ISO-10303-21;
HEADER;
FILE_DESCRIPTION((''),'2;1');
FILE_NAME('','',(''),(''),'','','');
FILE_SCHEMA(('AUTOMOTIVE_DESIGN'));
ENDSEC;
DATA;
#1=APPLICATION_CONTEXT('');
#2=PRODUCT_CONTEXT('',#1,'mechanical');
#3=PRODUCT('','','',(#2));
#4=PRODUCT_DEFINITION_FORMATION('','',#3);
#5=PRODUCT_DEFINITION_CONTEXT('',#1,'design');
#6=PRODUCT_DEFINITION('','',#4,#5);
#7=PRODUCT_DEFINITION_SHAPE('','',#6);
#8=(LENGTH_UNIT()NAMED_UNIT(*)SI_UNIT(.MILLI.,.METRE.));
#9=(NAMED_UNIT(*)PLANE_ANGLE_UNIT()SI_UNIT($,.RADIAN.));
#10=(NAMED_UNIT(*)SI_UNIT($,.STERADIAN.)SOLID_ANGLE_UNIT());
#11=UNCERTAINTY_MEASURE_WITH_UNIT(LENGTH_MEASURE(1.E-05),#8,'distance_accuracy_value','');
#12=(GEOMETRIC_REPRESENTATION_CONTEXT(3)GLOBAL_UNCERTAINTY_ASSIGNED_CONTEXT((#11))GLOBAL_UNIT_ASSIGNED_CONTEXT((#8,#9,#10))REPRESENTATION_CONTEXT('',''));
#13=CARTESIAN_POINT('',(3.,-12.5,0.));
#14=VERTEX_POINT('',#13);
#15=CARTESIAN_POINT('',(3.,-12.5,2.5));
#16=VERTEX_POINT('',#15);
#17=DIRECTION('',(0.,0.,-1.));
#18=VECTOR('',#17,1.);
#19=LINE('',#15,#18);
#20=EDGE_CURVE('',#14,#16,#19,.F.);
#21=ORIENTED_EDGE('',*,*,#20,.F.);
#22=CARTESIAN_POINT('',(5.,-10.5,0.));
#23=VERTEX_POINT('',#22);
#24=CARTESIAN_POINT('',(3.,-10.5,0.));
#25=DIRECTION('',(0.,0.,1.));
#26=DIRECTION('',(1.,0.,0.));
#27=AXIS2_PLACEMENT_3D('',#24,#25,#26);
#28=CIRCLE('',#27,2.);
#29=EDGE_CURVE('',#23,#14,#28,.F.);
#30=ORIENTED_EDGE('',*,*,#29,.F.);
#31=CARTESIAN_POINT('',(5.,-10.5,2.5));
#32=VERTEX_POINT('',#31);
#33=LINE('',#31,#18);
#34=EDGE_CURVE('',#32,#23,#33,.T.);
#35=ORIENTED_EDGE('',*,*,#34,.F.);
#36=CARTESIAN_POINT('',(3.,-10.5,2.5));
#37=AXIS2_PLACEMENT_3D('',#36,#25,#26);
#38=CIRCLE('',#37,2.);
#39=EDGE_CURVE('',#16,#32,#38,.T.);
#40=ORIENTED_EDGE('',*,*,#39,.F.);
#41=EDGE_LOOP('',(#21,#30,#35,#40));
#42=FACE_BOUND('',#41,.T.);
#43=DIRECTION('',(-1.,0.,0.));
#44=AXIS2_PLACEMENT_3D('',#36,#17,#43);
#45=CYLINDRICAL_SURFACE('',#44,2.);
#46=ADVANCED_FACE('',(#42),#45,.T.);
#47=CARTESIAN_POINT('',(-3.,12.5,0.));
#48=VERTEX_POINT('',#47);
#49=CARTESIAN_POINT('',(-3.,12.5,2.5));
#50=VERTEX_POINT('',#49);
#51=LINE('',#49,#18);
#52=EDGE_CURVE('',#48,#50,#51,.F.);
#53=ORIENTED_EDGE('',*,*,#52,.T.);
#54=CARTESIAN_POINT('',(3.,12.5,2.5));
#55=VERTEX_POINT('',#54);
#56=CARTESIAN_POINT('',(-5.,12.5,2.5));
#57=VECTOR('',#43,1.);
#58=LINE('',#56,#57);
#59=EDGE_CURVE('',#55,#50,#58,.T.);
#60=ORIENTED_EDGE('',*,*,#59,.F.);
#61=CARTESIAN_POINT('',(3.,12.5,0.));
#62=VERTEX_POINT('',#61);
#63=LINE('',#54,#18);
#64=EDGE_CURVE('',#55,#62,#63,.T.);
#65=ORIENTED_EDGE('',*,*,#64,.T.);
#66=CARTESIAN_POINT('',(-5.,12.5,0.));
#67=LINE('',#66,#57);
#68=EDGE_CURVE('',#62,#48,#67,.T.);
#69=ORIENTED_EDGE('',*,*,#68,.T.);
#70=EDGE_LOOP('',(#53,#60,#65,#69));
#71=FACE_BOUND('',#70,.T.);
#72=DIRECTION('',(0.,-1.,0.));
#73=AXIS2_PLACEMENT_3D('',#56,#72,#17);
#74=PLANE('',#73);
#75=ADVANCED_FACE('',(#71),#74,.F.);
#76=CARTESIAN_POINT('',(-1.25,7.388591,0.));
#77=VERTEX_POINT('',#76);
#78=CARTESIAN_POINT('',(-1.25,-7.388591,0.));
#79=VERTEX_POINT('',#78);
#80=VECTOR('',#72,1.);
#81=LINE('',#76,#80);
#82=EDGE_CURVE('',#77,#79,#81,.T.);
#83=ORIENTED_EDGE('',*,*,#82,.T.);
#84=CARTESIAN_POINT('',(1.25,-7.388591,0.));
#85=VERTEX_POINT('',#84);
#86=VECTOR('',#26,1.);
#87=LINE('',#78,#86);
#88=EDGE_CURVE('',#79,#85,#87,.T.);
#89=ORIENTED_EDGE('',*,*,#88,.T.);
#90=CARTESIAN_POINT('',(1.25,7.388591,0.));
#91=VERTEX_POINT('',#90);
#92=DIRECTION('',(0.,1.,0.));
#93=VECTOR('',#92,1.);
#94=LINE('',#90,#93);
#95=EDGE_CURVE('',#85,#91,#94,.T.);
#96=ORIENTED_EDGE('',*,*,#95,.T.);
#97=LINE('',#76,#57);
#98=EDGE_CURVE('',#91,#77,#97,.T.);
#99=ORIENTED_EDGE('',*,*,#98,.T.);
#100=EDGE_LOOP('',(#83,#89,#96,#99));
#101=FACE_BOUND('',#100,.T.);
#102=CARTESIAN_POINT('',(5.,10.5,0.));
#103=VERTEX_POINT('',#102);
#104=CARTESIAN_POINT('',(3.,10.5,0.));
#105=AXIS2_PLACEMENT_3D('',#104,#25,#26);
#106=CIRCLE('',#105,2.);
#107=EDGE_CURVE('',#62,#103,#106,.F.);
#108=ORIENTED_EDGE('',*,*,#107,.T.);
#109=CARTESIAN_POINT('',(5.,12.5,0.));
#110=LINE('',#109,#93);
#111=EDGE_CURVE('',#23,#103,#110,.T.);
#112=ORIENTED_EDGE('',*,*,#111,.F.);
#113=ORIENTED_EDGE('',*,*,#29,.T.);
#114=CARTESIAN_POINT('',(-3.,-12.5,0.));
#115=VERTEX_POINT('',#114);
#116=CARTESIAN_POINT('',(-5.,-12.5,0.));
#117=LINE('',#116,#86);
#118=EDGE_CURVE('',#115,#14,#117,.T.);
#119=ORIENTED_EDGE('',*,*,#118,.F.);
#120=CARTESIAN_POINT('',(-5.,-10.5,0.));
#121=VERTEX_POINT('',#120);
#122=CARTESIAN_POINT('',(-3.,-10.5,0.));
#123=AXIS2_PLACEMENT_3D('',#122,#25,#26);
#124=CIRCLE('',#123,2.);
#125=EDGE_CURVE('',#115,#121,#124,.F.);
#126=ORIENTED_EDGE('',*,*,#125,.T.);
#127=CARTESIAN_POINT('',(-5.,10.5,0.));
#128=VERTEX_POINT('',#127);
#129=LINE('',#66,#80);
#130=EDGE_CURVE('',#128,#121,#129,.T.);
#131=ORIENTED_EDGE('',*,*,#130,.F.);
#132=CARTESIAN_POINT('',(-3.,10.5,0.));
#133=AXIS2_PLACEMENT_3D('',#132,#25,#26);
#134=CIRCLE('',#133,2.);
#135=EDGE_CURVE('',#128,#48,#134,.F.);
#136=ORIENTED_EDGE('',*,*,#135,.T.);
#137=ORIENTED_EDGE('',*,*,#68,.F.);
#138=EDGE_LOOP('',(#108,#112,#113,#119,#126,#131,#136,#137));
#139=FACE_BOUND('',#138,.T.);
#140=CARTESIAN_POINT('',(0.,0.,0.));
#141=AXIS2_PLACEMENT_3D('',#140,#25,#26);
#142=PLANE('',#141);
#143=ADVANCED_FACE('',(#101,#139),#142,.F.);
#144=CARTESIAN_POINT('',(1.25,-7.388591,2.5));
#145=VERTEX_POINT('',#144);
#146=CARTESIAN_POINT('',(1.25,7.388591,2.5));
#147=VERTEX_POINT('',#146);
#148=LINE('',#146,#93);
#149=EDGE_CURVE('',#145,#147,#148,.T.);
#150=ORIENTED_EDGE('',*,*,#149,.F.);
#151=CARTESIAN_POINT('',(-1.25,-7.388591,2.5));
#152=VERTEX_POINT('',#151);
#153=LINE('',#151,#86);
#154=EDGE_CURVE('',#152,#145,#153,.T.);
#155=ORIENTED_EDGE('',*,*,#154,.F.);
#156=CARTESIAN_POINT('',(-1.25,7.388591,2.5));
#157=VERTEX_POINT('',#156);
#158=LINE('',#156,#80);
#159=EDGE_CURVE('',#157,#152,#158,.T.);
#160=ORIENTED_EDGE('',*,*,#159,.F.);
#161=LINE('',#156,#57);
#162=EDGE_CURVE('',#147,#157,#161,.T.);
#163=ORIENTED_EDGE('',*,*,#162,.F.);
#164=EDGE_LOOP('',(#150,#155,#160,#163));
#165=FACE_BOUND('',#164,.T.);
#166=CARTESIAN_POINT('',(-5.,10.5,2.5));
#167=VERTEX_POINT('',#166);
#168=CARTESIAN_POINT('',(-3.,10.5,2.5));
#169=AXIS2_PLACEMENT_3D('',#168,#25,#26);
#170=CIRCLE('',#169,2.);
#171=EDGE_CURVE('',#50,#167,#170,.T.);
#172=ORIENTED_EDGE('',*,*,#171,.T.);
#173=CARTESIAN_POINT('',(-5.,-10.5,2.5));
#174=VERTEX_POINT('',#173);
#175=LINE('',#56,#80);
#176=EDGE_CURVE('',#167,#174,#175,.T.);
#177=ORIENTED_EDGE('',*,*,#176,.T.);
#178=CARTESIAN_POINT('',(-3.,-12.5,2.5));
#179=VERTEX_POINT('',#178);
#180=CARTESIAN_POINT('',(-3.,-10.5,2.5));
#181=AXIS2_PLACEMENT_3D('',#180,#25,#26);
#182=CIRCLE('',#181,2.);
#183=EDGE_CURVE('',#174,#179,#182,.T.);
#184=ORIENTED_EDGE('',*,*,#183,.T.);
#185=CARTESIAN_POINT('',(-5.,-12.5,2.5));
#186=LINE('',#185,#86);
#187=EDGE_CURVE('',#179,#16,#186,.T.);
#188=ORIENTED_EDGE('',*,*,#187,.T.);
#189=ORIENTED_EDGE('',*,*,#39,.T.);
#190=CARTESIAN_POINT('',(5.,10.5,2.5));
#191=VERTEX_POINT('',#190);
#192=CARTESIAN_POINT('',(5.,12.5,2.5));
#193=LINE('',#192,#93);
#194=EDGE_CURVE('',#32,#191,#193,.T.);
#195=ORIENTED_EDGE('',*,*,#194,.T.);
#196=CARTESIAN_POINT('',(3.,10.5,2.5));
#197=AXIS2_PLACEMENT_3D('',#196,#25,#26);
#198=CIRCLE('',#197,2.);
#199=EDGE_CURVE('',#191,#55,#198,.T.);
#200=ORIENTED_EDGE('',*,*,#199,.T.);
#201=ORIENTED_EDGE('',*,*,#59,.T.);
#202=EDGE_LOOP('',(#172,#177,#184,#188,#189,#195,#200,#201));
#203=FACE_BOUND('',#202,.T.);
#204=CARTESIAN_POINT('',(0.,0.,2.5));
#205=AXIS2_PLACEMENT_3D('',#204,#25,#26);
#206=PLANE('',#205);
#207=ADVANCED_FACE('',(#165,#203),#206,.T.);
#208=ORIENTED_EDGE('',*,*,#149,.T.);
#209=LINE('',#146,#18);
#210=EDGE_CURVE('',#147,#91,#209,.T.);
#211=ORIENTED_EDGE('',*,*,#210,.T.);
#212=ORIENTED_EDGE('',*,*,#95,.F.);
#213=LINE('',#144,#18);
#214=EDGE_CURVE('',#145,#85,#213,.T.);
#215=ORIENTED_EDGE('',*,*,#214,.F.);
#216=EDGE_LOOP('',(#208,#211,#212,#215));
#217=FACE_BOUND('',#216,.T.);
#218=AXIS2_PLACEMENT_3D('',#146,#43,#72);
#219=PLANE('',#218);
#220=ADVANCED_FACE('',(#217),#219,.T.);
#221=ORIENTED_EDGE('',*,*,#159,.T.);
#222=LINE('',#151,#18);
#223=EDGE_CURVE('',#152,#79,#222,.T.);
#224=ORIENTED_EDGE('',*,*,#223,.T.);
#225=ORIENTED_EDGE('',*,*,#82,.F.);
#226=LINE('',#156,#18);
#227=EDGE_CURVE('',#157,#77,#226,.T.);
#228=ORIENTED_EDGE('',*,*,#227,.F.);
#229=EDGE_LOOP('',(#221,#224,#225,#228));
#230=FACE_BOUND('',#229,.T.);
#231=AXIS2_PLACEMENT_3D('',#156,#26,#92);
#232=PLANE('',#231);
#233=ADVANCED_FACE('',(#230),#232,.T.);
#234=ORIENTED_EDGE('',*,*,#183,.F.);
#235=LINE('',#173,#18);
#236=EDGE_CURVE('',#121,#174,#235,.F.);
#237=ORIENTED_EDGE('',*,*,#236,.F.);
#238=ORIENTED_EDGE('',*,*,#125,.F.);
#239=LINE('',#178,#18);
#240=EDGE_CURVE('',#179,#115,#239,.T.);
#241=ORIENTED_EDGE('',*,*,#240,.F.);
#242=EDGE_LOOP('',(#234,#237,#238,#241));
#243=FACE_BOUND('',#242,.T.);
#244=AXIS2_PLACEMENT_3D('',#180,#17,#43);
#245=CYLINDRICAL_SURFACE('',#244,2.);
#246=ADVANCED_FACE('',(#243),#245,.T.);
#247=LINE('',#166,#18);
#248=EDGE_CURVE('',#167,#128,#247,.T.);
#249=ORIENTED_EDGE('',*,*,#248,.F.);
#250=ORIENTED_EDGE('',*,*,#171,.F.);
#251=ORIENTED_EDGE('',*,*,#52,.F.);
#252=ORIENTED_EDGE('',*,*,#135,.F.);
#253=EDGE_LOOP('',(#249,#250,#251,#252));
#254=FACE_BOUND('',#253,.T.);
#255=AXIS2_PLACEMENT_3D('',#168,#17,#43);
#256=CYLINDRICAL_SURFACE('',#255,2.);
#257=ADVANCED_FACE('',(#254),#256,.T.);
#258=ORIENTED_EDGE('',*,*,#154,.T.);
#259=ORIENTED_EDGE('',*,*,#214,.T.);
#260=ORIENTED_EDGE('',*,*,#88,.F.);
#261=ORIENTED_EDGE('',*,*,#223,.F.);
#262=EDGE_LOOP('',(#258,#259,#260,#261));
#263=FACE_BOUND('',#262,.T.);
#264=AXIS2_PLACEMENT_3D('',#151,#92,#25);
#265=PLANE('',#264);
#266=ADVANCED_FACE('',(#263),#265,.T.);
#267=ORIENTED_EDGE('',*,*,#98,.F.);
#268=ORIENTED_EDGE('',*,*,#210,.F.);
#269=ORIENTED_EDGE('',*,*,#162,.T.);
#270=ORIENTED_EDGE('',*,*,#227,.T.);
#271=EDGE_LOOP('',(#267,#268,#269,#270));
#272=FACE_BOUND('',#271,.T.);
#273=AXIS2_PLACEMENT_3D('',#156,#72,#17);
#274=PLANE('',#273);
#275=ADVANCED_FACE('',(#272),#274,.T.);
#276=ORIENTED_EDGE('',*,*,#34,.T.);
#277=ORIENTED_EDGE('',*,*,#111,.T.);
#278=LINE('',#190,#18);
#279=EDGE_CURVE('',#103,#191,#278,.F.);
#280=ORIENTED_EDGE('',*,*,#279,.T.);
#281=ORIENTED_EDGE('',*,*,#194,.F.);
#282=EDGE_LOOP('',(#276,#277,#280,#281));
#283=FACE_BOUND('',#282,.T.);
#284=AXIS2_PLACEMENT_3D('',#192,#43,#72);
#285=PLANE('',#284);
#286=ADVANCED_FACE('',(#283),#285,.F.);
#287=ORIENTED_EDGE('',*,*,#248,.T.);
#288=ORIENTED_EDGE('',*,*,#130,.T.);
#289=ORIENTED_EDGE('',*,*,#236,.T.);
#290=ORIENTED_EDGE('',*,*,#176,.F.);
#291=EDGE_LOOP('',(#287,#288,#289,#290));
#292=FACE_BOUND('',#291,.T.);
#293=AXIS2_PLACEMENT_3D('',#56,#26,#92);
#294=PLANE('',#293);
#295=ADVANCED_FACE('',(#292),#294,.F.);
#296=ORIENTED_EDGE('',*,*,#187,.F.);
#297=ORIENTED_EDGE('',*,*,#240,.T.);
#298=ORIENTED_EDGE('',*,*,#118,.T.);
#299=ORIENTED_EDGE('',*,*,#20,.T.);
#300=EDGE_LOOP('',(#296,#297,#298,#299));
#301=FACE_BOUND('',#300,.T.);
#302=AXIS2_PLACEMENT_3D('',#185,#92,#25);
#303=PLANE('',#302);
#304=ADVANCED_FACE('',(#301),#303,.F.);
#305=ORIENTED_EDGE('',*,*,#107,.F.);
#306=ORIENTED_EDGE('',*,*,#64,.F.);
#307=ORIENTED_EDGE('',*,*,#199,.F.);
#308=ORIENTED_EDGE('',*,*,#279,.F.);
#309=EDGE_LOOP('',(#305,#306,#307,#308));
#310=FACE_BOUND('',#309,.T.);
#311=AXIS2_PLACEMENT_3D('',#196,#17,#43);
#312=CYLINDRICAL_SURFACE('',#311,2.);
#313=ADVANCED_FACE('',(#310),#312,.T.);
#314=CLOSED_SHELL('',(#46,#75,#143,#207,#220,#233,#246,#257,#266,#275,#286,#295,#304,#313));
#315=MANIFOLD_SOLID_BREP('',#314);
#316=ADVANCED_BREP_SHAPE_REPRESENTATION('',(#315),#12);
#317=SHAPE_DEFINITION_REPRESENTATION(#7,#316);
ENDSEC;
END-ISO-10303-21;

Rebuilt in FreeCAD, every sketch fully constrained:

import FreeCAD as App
import Part
import Sketcher
from FreeCAD import Vector


def edges_at(feature, points):
    """Names of the edges that pass closest to the given points."""
    edges = feature.Shape.Edges
    near = lambda p: min(range(len(edges)), key=lambda i: edges[i].distToShape(Part.Vertex(*p))[0])
    return sorted({f"Edge{near(p) + 1}" for p in points})


def add_polygon(sketch, points):
    """Adds a closed chain of lines whose ends are joined by coincident constraints."""
    first, n = sketch.GeometryCount, len(points)
    for a, b in zip(points, points[1:] + points[:1]):
        sketch.addGeometry(Part.LineSegment(App.Vector(*a, 0), App.Vector(*b, 0)), False)
    for i in range(n):
        sketch.addConstraint(Sketcher.Constraint("Coincident", first + i, 2, first + (i + 1) % n, 1))

doc = App.newDocument("Part")
params = doc.addObject("Spreadsheet::Sheet", "Params")
for row, (alias, value) in enumerate([
    ("sketch1_width", "10 mm"),
    ("sketch1_height", "25 mm"),
    ("sketch1_width2", "2.5 mm"),
    ("pad1_length", "2.5 mm"),
    ("fillet_radius", "2 mm"),
], start=1):
    params.set(f"A{row}", alias)
    params.set(f"B{row}", "=" + value)
    params.setAlias(f"B{row}", alias)

body = doc.addObject("PartDesign::Body", "Body")

# Sketch on XY plane
sketch1 = body.newObject("Sketcher::SketchObject", "Sketch")
sketch1.AttachmentSupport = (doc.getObject("XY_Plane"), [""])
sketch1.MapMode = "FlatFace"
add_polygon(sketch1, [(-5, 12.5), (-5, -12.5), (5, -12.5), (5, 12.5)])  # lines 0-3
add_polygon(sketch1, [(1.2, -7.4), (-1.2, -7.4), (-1.2, 7.4), (1.2, 7.4)])  # lines 4-7
sketch1.addConstraint([
    Sketcher.Constraint("Vertical", 0),
    Sketcher.Constraint("Horizontal", 1),
    Sketcher.Constraint("Vertical", 2),
    Sketcher.Constraint("Horizontal", 3),
    Sketcher.Constraint("Horizontal", 4),
    Sketcher.Constraint("Vertical", 5),
    Sketcher.Constraint("Horizontal", 6),
    Sketcher.Constraint("Vertical", 7),
    Sketcher.Constraint("Symmetric", 0, 2, 2, 2, -1, 1),
    Sketcher.Constraint("Symmetric", 4, 2, 6, 2, -1, 1),
    Sketcher.Constraint("DistanceX", 1, 1, 1, 2, 10.0),
    Sketcher.Constraint("DistanceY", 0, 2, 0, 1, 25.0),
    Sketcher.Constraint("DistanceX", 4, 2, 4, 1, 2.5),
    Sketcher.Constraint("DistanceY", 5, 1, 5, 2, 14.777181),
])
sketch1.setExpression("Constraints[18]", "Params.sketch1_width")
sketch1.setExpression("Constraints[19]", "Params.sketch1_height")
sketch1.setExpression("Constraints[20]", "Params.sketch1_width2")
pad1 = body.newObject("PartDesign::Pad", "Pad")
pad1.Profile = sketch1
pad1.setExpression("Length", "Params.pad1_length")
doc.recompute()

fillet = body.newObject("PartDesign::Fillet", "Fillet")
fillet.Base = (pad1, edges_at(pad1, [
    (5, -12.5, 1.25),
    (-5, -12.5, 1.25),
    (-5, 12.5, 1.25),
    (5, 12.5, 1.25),
]))
fillet.setExpression("Radius", "Params.fillet_radius")

doc.recompute()
